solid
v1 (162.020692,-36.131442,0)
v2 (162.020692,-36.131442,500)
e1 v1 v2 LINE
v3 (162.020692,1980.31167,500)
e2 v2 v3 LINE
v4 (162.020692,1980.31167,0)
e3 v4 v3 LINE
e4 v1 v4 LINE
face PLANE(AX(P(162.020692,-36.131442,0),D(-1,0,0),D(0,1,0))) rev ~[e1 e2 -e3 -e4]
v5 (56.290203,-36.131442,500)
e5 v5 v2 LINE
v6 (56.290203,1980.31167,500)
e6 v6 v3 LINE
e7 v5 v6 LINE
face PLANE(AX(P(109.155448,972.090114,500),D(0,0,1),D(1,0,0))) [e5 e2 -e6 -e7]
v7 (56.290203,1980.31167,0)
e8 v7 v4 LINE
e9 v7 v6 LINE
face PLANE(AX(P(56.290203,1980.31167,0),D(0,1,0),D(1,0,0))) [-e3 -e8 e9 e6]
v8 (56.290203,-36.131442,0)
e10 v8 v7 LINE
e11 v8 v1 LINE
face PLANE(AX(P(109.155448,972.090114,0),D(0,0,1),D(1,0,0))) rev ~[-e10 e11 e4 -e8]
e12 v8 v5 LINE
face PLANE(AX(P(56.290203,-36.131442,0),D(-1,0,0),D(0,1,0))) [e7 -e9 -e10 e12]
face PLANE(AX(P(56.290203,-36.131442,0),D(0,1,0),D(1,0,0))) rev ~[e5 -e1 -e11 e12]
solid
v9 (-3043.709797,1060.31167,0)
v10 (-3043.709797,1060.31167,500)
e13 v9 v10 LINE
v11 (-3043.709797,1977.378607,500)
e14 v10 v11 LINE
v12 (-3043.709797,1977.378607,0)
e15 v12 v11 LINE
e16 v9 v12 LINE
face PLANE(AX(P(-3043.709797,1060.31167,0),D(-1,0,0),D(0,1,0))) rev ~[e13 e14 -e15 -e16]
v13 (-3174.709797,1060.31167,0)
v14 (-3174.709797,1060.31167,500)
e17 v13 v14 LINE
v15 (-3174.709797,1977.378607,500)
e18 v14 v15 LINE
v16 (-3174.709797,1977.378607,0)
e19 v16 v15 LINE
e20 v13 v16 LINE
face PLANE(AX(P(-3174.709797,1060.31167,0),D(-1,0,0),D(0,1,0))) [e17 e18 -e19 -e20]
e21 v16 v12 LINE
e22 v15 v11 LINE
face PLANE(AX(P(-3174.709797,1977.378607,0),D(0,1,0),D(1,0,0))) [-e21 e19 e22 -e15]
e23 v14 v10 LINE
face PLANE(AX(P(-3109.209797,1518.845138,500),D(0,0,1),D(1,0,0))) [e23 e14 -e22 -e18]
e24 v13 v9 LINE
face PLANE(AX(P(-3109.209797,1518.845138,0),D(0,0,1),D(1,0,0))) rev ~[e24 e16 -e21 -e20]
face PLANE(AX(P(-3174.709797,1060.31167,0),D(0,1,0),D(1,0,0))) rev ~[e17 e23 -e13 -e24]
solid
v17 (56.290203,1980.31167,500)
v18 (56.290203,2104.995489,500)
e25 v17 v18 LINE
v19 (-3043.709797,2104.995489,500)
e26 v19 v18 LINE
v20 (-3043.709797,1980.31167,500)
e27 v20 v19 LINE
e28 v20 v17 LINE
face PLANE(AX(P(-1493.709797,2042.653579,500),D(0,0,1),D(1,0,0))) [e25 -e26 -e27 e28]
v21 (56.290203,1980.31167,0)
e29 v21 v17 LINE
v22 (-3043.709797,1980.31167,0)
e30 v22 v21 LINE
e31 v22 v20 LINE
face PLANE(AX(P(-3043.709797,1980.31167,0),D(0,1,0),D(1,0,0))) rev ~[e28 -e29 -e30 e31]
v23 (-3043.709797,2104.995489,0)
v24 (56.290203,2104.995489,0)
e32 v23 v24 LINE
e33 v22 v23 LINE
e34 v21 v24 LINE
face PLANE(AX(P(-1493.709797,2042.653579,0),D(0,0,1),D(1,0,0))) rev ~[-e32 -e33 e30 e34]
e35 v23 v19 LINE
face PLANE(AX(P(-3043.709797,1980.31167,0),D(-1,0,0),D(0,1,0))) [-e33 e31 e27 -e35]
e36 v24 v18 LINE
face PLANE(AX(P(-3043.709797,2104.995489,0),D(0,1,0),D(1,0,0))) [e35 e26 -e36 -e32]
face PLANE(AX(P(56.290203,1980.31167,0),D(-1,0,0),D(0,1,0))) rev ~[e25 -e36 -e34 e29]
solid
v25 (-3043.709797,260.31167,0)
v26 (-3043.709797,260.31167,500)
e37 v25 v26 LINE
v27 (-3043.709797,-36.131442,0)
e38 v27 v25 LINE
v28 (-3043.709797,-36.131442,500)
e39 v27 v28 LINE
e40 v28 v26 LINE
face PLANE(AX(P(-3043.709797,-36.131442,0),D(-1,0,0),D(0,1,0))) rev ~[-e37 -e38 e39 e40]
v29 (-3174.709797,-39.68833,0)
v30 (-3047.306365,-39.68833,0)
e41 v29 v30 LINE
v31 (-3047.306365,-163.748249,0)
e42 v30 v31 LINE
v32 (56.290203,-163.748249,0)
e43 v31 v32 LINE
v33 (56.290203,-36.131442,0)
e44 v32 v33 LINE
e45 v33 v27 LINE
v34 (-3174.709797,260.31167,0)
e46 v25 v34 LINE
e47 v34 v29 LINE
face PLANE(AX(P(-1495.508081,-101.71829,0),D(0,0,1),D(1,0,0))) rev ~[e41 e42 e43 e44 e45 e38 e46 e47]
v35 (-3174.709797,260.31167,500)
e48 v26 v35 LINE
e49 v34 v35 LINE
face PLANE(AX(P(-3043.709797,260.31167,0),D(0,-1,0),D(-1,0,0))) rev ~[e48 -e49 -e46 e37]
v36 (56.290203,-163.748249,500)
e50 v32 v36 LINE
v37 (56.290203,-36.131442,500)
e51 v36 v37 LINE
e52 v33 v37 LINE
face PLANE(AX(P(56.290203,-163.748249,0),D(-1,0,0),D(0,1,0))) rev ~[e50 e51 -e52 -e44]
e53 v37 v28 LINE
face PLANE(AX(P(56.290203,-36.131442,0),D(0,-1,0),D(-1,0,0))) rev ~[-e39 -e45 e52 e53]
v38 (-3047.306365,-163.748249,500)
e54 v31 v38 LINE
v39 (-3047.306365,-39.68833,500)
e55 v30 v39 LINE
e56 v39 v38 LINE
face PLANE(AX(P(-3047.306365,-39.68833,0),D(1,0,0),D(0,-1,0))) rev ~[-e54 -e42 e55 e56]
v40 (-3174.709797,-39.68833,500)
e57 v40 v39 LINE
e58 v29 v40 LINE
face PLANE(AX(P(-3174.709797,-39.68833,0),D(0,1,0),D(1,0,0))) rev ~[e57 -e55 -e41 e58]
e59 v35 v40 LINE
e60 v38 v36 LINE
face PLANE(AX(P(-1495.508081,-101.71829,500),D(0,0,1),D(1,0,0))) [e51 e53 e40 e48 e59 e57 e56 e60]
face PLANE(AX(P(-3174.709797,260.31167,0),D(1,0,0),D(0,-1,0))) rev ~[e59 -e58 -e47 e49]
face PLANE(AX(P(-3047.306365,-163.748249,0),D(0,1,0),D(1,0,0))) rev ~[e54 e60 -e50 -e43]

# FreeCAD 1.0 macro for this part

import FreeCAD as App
import Part
import Sketcher

doc = App.newDocument("Part")
params = doc.addObject("Spreadsheet::Sheet", "Params")
for row, (alias, value) in enumerate([
    ("sketch1_width", "3100 mm"),
    ("pad1_length", "500 mm"),
    ("pad2_length", "500 mm"),
    ("sketch3_width", "3100 mm"),
    ("sketch3_width2", "131 mm"),
    ("sketch3_height", "300 mm"),
    ("pad3_length", "500 mm"),
    ("sketch4_width", "131 mm"),
    ("pad4_length", "500 mm"),
], start=1):
    params.set(f"A{row}", alias)
    params.set(f"B{row}", "=" + value)
    params.setAlias(f"B{row}", alias)

body = doc.addObject("PartDesign::Body", "Body")

# Sketch on XY plane
sketch1 = body.newObject("Sketcher::SketchObject", "Sketch")
sketch1.AttachmentSupport = (doc.getObject("XY_Plane"), [""])
sketch1.MapMode = "FlatFace"
sketch1.addGeometry(Part.LineSegment(App.Vector(-3043.709797, 2104.995489, 0), App.Vector(-3043.709797, 1980.31167, 0)), False)
sketch1.addGeometry(Part.LineSegment(App.Vector(-3043.709797, 1980.31167, 0), App.Vector(56.290203, 1980.31167, 0)), False)
sketch1.addGeometry(Part.LineSegment(App.Vector(56.290203, 1980.31167, 0), App.Vector(56.290203, 2104.995489, 0)), False)
sketch1.addGeometry(Part.LineSegment(App.Vector(56.290203, 2104.995489, 0), App.Vector(-3043.709797, 2104.995489, 0)), False)
sketch1.addConstraint(Sketcher.Constraint("Coincident", 0, 2, 1, 1))
sketch1.addConstraint(Sketcher.Constraint("Coincident", 1, 2, 2, 1))
sketch1.addConstraint(Sketcher.Constraint("Coincident", 2, 2, 3, 1))
sketch1.addConstraint(Sketcher.Constraint("Coincident", 3, 2, 0, 1))
sketch1.addConstraint(Sketcher.Constraint("Vertical", 0))
sketch1.addConstraint(Sketcher.Constraint("Horizontal", 1))
sketch1.addConstraint(Sketcher.Constraint("Vertical", 2))
sketch1.addConstraint(Sketcher.Constraint("Horizontal", 3))
sketch1.addConstraint(Sketcher.Constraint("DistanceX", 1, 1, 1, 2, 3100.0))
sketch1.addConstraint(Sketcher.Constraint("DistanceY", 0, 2, 0, 1, 124.683819))
sketch1.addConstraint(Sketcher.Constraint("DistanceY", -1, 1, 0, 2, 1980.31167))
sketch1.addConstraint(Sketcher.Constraint("DistanceX", 0, 2, -1, 1, 3043.709797))
sketch1.setExpression("Constraints[8]", "Params.sketch1_width")
pad1 = body.newObject("PartDesign::Pad", "Pad")
pad1.Profile = sketch1
pad1.setExpression("Length", "Params.pad1_length")
body2 = doc.addObject("PartDesign::Body", "Body001")

# Sketch on XY plane
sketch2 = body2.newObject("Sketcher::SketchObject", "Sketch001")
sketch2.AttachmentSupport = (doc.getObject("XY_Plane001"), [""])
sketch2.MapMode = "FlatFace"
sketch2.addGeometry(Part.LineSegment(App.Vector(56.290203, 1980.31167, 0), App.Vector(56.290203, -36.131442, 0)), False)
sketch2.addGeometry(Part.LineSegment(App.Vector(56.290203, -36.131442, 0), App.Vector(162.020692, -36.131442, 0)), False)
sketch2.addGeometry(Part.LineSegment(App.Vector(162.020692, -36.131442, 0), App.Vector(162.020692, 1980.31167, 0)), False)
sketch2.addGeometry(Part.LineSegment(App.Vector(162.020692, 1980.31167, 0), App.Vector(56.290203, 1980.31167, 0)), False)
sketch2.addConstraint(Sketcher.Constraint("Coincident", 0, 2, 1, 1))
sketch2.addConstraint(Sketcher.Constraint("Coincident", 1, 2, 2, 1))
sketch2.addConstraint(Sketcher.Constraint("Coincident", 2, 2, 3, 1))
sketch2.addConstraint(Sketcher.Constraint("Coincident", 3, 2, 0, 1))
sketch2.addConstraint(Sketcher.Constraint("Vertical", 0))
sketch2.addConstraint(Sketcher.Constraint("Horizontal", 1))
sketch2.addConstraint(Sketcher.Constraint("Vertical", 2))
sketch2.addConstraint(Sketcher.Constraint("Horizontal", 3))
sketch2.addConstraint(Sketcher.Constraint("DistanceX", 1, 1, 1, 2, 105.730489))
sketch2.addConstraint(Sketcher.Constraint("DistanceY", 0, 2, 0, 1, 2016.443111))
sketch2.addConstraint(Sketcher.Constraint("DistanceY", 0, 2, -1, 1, 36.131442))
sketch2.addConstraint(Sketcher.Constraint("DistanceX", -1, 1, 1, 2, 162.020692))
pad2 = body2.newObject("PartDesign::Pad", "Pad001")
pad2.Profile = sketch2
pad2.setExpression("Length", "Params.pad2_length")
body3 = doc.addObject("PartDesign::Body", "Body002")

# Sketch on XY plane
sketch3 = body3.newObject("Sketcher::SketchObject", "Sketch002")
sketch3.AttachmentSupport = (doc.getObject("XY_Plane002"), [""])
sketch3.MapMode = "FlatFace"
sketch3.addGeometry(Part.LineSegment(App.Vector(56.290203, -163.748249, 0), App.Vector(56.290203, -36.131442, 0)), False)
sketch3.addGeometry(Part.LineSegment(App.Vector(56.290203, -36.131442, 0), App.Vector(-3043.709797, -36.131442, 0)), False)
sketch3.addGeometry(Part.LineSegment(App.Vector(-3043.709797, -36.131442, 0), App.Vector(-3043.709797, 260.31167, 0)), False)
sketch3.addGeometry(Part.LineSegment(App.Vector(-3043.709797, 260.31167, 0), App.Vector(-3174.709797, 260.31167, 0)), False)
sketch3.addGeometry(Part.LineSegment(App.Vector(-3174.709797, 260.31167, 0), App.Vector(-3174.709797, -39.68833, 0)), False)
sketch3.addGeometry(Part.LineSegment(App.Vector(-3174.709797, -39.68833, 0), App.Vector(-3047.306365, -39.68833, 0)), False)
sketch3.addGeometry(Part.LineSegment(App.Vector(-3047.306365, -39.68833, 0), App.Vector(-3047.306365, -163.748249, 0)), False)
sketch3.addGeometry(Part.LineSegment(App.Vector(-3047.306365, -163.748249, 0), App.Vector(56.290203, -163.748249, 0)), False)
sketch3.addConstraint(Sketcher.Constraint("Coincident", 0, 2, 1, 1))
sketch3.addConstraint(Sketcher.Constraint("Coincident", 1, 2, 2, 1))
sketch3.addConstraint(Sketcher.Constraint("Coincident", 2, 2, 3, 1))
sketch3.addConstraint(Sketcher.Constraint("Coincident", 3, 2, 4, 1))
sketch3.addConstraint(Sketcher.Constraint("Coincident", 4, 2, 5, 1))
sketch3.addConstraint(Sketcher.Constraint("Coincident", 5, 2, 6, 1))
sketch3.addConstraint(Sketcher.Constraint("Coincident", 6, 2, 7, 1))
sketch3.addConstraint(Sketcher.Constraint("Coincident", 7, 2, 0, 1))
sketch3.addConstraint(Sketcher.Constraint("Vertical", 0))
sketch3.addConstraint(Sketcher.Constraint("Horizontal", 1))
sketch3.addConstraint(Sketcher.Constraint("Vertical", 2))
sketch3.addConstraint(Sketcher.Constraint("Horizontal", 3))
sketch3.addConstraint(Sketcher.Constraint("Vertical", 4))
sketch3.addConstraint(Sketcher.Constraint("Horizontal", 5))
sketch3.addConstraint(Sketcher.Constraint("Vertical", 6))
sketch3.addConstraint(Sketcher.Constraint("Horizontal", 7))
sketch3.addConstraint(Sketcher.Constraint("DistanceX", 1, 2, 1, 1, 3100.0))
sketch3.addConstraint(Sketcher.Constraint("DistanceX", 3, 2, 3, 1, 131.0))
sketch3.addConstraint(Sketcher.Constraint("DistanceY", 4, 2, 4, 1, 300.0))
sketch3.addConstraint(Sketcher.Constraint("DistanceX", 5, 1, 5, 2, 127.403432))
sketch3.addConstraint(Sketcher.Constraint("DistanceY", 2, 1, 2, 2, 296.443111))
sketch3.addConstraint(Sketcher.Constraint("DistanceY", 6, 2, 6, 1, 124.059919))
sketch3.addConstraint(Sketcher.Constraint("DistanceY", 0, 2, -1, 1, 36.131442))
sketch3.addConstraint(Sketcher.Constraint("DistanceX", -1, 1, 0, 2, 56.290203))
sketch3.setExpression("Constraints[16]", "Params.sketch3_width")
sketch3.setExpression("Constraints[17]", "Params.sketch3_width2")
sketch3.setExpression("Constraints[18]", "Params.sketch3_height")
pad3 = body3.newObject("PartDesign::Pad", "Pad002")
pad3.Profile = sketch3
pad3.setExpression("Length", "Params.pad3_length")
body4 = doc.addObject("PartDesign::Body", "Body003")

# Sketch on XY plane
sketch4 = body4.newObject("Sketcher::SketchObject", "Sketch003")
sketch4.AttachmentSupport = (doc.getObject("XY_Plane003"), [""])
sketch4.MapMode = "FlatFace"
sketch4.addGeometry(Part.LineSegment(App.Vector(-3174.709797, 1977.378607, 0), App.Vector(-3174.709797, 1060.31167, 0)), False)
sketch4.addGeometry(Part.LineSegment(App.Vector(-3174.709797, 1060.31167, 0), App.Vector(-3043.709797, 1060.31167, 0)), False)
sketch4.addGeometry(Part.LineSegment(App.Vector(-3043.709797, 1060.31167, 0), App.Vector(-3043.709797, 1977.378607, 0)), False)
sketch4.addGeometry(Part.LineSegment(App.Vector(-3043.709797, 1977.378607, 0), App.Vector(-3174.709797, 1977.378607, 0)), False)
sketch4.addConstraint(Sketcher.Constraint("Coincident", 0, 2, 1, 1))
sketch4.addConstraint(Sketcher.Constraint("Coincident", 1, 2, 2, 1))
sketch4.addConstraint(Sketcher.Constraint("Coincident", 2, 2, 3, 1))
sketch4.addConstraint(Sketcher.Constraint("Coincident", 3, 2, 0, 1))
sketch4.addConstraint(Sketcher.Constraint("Vertical", 0))
sketch4.addConstraint(Sketcher.Constraint("Horizontal", 1))
sketch4.addConstraint(Sketcher.Constraint("Vertical", 2))
sketch4.addConstraint(Sketcher.Constraint("Horizontal", 3))
sketch4.addConstraint(Sketcher.Constraint("DistanceX", 1, 1, 1, 2, 131.0))
sketch4.addConstraint(Sketcher.Constraint("DistanceY", 0, 2, 0, 1, 917.066937))
sketch4.addConstraint(Sketcher.Constraint("DistanceY", -1, 1, 0, 2, 1060.31167))
sketch4.addConstraint(Sketcher.Constraint("DistanceX", 0, 2, -1, 1, 3174.709797))
sketch4.setExpression("Constraints[8]", "Params.sketch4_width")
pad4 = body4.newObject("PartDesign::Pad", "Pad003")
pad4.Profile = sketch4
pad4.setExpression("Length", "Params.pad4_length")

doc.recompute()
